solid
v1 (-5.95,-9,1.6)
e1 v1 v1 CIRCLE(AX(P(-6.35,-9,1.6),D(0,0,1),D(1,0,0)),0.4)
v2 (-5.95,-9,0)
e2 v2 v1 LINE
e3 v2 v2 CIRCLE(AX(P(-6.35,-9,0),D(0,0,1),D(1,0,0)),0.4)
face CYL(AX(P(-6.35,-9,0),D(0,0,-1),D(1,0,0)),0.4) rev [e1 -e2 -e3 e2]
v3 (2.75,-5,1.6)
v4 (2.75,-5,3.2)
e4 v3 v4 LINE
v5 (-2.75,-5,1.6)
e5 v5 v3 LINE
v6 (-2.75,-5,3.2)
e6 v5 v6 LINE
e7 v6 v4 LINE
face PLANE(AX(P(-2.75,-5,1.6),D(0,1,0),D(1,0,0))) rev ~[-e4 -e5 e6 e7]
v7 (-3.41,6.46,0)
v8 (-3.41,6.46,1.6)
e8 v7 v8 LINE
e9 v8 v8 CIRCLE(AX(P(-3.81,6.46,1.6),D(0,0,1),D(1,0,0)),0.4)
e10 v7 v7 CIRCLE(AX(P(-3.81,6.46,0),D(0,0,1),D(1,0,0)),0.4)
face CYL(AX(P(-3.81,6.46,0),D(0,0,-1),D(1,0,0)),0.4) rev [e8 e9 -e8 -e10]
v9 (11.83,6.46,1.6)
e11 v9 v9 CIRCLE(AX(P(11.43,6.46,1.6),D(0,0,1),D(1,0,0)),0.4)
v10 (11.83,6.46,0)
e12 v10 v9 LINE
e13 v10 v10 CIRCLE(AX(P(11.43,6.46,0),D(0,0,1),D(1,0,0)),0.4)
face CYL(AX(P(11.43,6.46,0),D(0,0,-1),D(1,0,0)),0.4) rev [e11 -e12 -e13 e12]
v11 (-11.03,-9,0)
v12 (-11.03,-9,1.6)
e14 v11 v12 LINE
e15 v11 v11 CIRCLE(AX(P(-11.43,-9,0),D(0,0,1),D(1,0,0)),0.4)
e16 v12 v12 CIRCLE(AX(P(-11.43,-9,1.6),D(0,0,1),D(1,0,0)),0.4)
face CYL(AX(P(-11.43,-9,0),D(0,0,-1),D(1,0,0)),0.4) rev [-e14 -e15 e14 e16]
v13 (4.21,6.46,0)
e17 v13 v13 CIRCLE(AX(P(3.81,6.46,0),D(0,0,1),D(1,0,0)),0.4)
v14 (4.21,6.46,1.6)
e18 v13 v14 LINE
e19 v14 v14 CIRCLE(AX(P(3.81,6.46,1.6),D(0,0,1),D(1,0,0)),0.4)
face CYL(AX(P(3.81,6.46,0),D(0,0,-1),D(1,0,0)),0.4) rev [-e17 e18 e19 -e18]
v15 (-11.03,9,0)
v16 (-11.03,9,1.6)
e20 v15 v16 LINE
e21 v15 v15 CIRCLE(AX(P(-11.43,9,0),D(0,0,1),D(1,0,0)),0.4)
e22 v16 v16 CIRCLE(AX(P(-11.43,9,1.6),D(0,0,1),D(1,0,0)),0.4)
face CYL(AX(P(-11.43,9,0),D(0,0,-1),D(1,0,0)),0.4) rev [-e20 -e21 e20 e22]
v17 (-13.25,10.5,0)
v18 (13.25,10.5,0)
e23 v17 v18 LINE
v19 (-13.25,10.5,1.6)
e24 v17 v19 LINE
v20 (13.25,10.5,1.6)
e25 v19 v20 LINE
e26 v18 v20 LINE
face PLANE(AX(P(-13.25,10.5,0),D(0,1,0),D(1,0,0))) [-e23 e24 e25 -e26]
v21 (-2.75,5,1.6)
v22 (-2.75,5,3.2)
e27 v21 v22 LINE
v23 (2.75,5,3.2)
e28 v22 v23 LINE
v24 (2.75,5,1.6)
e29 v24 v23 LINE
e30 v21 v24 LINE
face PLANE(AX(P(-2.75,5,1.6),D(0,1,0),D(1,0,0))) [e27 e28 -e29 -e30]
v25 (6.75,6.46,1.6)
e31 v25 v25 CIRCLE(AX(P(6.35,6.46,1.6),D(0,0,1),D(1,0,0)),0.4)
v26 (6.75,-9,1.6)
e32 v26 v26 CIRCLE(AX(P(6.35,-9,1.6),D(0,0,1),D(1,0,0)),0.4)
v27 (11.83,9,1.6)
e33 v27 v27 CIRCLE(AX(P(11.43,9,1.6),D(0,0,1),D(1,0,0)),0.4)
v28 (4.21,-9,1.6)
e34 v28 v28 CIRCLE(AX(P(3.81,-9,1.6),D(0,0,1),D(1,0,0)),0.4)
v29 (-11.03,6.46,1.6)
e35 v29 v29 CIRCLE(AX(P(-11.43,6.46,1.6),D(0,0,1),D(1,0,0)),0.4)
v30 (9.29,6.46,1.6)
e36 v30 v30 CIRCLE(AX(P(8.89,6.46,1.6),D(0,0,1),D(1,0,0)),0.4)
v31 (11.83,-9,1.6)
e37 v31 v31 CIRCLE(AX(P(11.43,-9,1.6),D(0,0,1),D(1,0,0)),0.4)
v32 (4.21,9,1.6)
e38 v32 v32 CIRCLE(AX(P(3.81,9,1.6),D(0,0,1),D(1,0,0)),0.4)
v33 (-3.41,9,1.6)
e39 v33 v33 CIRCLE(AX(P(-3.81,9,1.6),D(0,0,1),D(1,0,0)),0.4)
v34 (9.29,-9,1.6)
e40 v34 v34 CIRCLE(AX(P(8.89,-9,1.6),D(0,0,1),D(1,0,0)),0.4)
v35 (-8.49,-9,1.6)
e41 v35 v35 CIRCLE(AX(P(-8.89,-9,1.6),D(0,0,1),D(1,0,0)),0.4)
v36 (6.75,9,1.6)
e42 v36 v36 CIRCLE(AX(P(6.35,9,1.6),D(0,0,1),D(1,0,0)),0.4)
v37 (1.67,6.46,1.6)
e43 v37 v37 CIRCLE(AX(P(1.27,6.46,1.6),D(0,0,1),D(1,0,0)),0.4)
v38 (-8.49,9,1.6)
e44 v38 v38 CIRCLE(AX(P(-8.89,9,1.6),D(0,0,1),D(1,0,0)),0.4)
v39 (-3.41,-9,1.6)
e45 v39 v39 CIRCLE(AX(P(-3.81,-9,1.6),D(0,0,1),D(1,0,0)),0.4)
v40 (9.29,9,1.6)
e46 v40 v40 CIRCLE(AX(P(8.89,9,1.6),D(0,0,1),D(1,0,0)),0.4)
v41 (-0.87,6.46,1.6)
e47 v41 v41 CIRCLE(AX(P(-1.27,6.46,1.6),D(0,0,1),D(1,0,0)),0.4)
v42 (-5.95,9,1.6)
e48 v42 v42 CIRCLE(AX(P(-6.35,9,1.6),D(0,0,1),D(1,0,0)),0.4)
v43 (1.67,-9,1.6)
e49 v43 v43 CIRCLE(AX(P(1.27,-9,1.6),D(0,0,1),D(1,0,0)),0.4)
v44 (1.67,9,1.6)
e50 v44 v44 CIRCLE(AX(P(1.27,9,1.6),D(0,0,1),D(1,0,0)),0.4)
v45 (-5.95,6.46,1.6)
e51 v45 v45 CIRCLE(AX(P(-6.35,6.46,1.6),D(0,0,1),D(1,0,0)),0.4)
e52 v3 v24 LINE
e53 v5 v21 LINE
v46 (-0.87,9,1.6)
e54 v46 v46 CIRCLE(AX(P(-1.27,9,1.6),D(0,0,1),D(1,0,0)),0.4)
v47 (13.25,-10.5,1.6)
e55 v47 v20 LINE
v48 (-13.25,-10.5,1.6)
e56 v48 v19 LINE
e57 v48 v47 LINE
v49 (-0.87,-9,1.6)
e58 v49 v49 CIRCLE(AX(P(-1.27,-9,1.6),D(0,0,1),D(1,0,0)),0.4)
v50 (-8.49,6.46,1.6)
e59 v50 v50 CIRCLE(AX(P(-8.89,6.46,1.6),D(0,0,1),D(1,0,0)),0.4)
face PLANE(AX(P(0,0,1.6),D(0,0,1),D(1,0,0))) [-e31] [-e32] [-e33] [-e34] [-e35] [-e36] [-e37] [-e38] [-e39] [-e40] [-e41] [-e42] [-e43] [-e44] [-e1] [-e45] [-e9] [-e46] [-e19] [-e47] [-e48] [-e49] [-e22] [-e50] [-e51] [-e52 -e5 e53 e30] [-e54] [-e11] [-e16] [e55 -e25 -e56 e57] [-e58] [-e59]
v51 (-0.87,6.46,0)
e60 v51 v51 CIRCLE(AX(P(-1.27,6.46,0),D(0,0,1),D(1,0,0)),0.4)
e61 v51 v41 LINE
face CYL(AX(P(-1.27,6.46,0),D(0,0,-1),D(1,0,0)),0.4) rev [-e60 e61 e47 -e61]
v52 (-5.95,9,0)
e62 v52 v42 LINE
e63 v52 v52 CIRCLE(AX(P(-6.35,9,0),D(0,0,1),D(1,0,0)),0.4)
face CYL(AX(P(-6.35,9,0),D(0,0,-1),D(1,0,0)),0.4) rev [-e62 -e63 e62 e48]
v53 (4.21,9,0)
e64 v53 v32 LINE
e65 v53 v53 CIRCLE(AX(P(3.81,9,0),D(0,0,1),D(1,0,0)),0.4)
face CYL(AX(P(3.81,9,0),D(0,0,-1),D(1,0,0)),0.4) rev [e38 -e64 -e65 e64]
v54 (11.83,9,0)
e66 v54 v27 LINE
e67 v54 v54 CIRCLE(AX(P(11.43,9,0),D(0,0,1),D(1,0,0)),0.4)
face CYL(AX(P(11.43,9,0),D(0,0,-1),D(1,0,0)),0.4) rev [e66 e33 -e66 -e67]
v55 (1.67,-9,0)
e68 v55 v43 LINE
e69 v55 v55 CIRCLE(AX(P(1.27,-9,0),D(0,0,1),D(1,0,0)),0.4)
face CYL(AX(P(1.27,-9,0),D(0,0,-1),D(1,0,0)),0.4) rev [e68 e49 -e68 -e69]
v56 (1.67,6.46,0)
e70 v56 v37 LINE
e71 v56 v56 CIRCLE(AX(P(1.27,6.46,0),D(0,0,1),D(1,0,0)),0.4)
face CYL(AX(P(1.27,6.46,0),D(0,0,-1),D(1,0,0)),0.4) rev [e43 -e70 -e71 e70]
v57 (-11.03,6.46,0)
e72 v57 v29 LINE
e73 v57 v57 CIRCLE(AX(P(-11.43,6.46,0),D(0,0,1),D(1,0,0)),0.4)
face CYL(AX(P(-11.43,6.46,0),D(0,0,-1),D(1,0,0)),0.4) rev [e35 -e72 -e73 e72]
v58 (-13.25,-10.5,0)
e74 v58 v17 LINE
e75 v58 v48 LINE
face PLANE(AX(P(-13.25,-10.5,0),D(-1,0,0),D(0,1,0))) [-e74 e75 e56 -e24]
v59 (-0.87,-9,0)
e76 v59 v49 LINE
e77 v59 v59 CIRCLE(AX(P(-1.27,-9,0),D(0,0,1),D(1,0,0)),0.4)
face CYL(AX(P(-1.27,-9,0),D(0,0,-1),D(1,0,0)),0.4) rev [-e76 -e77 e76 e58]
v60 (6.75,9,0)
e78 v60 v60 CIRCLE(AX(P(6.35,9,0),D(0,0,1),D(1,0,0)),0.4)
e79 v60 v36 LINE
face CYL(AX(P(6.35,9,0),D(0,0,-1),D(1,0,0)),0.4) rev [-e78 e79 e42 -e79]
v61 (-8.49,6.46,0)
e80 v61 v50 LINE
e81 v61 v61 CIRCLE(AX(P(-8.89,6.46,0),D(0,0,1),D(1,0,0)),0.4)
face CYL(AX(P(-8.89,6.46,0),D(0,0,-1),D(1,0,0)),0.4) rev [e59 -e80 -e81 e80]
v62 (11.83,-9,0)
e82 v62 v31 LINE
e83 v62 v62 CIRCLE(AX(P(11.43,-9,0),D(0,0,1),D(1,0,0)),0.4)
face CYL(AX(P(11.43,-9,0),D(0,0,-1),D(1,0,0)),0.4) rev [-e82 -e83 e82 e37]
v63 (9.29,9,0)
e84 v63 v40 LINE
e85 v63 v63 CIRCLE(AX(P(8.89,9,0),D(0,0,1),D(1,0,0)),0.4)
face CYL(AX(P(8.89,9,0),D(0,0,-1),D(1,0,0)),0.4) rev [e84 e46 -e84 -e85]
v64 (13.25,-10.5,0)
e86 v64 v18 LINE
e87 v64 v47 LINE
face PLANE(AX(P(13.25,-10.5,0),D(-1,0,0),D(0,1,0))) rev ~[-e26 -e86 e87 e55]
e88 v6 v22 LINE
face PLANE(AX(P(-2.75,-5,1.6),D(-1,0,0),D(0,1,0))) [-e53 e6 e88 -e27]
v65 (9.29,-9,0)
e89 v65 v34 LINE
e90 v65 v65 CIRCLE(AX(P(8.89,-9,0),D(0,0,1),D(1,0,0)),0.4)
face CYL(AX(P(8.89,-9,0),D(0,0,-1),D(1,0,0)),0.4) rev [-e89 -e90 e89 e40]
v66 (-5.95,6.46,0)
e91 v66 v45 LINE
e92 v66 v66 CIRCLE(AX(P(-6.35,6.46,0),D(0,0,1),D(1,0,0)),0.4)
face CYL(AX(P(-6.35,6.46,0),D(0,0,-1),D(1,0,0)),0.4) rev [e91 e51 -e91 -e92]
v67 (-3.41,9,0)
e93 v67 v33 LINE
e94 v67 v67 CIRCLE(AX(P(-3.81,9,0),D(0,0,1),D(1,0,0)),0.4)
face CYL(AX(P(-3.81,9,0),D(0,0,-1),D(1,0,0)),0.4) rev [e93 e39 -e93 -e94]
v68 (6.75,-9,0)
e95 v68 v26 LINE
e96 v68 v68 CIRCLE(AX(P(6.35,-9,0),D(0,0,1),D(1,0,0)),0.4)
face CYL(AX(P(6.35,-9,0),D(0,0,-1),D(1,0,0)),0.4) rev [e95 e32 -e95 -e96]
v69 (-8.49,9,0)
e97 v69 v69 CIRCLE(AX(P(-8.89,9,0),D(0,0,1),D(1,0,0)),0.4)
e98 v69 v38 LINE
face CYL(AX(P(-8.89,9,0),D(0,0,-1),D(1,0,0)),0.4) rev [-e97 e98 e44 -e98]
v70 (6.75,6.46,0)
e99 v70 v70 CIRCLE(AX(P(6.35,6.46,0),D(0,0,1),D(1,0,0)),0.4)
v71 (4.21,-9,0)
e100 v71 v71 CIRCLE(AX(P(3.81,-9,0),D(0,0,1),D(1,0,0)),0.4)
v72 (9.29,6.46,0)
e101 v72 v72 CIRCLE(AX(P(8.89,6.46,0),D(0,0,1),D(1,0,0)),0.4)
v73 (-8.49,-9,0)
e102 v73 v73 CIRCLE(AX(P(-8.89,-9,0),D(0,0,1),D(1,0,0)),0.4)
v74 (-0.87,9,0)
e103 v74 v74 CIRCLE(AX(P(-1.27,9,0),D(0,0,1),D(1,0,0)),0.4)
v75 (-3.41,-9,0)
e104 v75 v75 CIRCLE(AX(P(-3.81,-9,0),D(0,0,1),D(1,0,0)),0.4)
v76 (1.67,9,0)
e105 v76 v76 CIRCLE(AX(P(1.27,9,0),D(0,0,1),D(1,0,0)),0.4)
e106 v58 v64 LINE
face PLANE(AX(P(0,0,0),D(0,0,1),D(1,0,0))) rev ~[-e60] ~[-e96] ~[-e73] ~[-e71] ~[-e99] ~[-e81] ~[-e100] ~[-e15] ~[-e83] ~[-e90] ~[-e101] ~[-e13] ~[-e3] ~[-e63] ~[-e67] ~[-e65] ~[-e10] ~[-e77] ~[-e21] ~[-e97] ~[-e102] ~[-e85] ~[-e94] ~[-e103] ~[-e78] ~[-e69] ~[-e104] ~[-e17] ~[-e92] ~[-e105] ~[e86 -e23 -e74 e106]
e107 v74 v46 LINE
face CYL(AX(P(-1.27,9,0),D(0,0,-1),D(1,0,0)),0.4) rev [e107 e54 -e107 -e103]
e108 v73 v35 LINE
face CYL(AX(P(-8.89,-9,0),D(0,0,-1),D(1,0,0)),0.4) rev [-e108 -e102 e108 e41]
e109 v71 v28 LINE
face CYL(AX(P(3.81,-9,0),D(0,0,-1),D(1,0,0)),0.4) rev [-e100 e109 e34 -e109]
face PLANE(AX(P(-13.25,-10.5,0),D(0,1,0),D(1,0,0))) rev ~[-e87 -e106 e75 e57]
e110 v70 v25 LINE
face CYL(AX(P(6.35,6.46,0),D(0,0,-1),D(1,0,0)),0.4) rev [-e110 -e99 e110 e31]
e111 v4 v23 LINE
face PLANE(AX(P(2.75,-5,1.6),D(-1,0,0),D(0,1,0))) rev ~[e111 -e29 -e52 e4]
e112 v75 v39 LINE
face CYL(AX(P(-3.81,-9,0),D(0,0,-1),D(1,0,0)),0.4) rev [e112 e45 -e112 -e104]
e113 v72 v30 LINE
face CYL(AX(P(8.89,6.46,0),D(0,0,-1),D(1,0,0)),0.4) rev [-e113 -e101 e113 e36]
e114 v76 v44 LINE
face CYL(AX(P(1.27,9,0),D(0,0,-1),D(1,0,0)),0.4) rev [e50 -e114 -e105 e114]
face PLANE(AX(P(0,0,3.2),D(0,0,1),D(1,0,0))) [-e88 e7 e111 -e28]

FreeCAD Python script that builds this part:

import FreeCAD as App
import Part
import Sketcher

V = App.Vector

doc = App.newDocument("Part")
body = doc.addObject("PartDesign::Body", "Body")

sketch1 = body.newObject("Sketcher::SketchObject", "Sketch")
sketch1.AttachmentSupport = (doc.getObject("XY_Plane"), [""])
sketch1.MapMode = "FlatFace"
sketch1.addGeometry([
    Part.LineSegment(V(-13.25, 10.5, 0), V(-13.25, -10.5, 0)),
    Part.LineSegment(V(-13.25, -10.5, 0), V(13.25, -10.5, 0)),
    Part.LineSegment(V(13.25, -10.5, 0), V(13.25, 10.5, 0)),
    Part.LineSegment(V(13.25, 10.5, 0), V(-13.25, 10.5, 0)),
    Part.Circle(V(-11.43, -9, 0), V(0, 0, 1), 0.4),
    Part.Circle(V(-8.89, -9, 0), V(0, 0, 1), 0.4),
    Part.Circle(V(-6.35, -9, 0), V(0, 0, 1), 0.4),
    Part.Circle(V(-3.81, -9, 0), V(0, 0, 1), 0.4),
    Part.Circle(V(-1.27, -9, 0), V(0, 0, 1), 0.4),
    Part.Circle(V(1.27, -9, 0), V(0, 0, 1), 0.4),
    Part.Circle(V(3.81, -9, 0), V(0, 0, 1), 0.4),
    Part.Circle(V(6.35, -9, 0), V(0, 0, 1), 0.4),
    Part.Circle(V(8.89, -9, 0), V(0, 0, 1), 0.4),
    Part.Circle(V(11.43, -9, 0), V(0, 0, 1), 0.4),
    Part.Circle(V(-11.43, 6.46, 0), V(0, 0, 1), 0.4),
    Part.Circle(V(-8.89, 6.46, 0), V(0, 0, 1), 0.4),
    Part.Circle(V(-6.35, 6.46, 0), V(0, 0, 1), 0.4),
    Part.Circle(V(-11.43, 9, 0), V(0, 0, 1), 0.4),
    Part.Circle(V(-8.89, 9, 0), V(0, 0, 1), 0.4),
    Part.Circle(V(-6.35, 9, 0), V(0, 0, 1), 0.4),
    Part.Circle(V(-3.81, 6.46, 0), V(0, 0, 1), 0.4),
    Part.Circle(V(-1.27, 6.46, 0), V(0, 0, 1), 0.4),
    Part.Circle(V(-3.81, 9, 0), V(0, 0, 1), 0.4),
    Part.Circle(V(-1.27, 9, 0), V(0, 0, 1), 0.4),
    Part.Circle(V(1.27, 6.46, 0), V(0, 0, 1), 0.4),
    Part.Circle(V(3.81, 6.46, 0), V(0, 0, 1), 0.4),
    Part.Circle(V(1.27, 9, 0), V(0, 0, 1), 0.4),
    Part.Circle(V(3.81, 9, 0), V(0, 0, 1), 0.4),
    Part.Circle(V(6.35, 6.46, 0), V(0, 0, 1), 0.4),
    Part.Circle(V(8.89, 6.46, 0), V(0, 0, 1), 0.4),
    Part.Circle(V(11.43, 6.46, 0), V(0, 0, 1), 0.4),
    Part.Circle(V(6.35, 9, 0), V(0, 0, 1), 0.4),
    Part.Circle(V(8.89, 9, 0), V(0, 0, 1), 0.4),
    Part.Circle(V(11.43, 9, 0), V(0, 0, 1), 0.4),
], False)
sketch1.addConstraint([
    Sketcher.Constraint("Coincident", 0, 2, 1, 1),
    Sketcher.Constraint("Coincident", 1, 2, 2, 1),
    Sketcher.Constraint("Coincident", 2, 2, 3, 1),
    Sketcher.Constraint("Coincident", 3, 2, 0, 1),
    Sketcher.Constraint("Vertical", 0),
    Sketcher.Constraint("Horizontal", 1),
    Sketcher.Constraint("Vertical", 2),
    Sketcher.Constraint("Horizontal", 3),
    Sketcher.Constraint("Equal", 4, 5),
    Sketcher.Constraint("Equal", 5, 6),
    Sketcher.Constraint("Equal", 6, 7),
    Sketcher.Constraint("Equal", 7, 8),
    Sketcher.Constraint("Equal", 8, 9),
    Sketcher.Constraint("Equal", 9, 10),
    Sketcher.Constraint("Equal", 10, 11),
    Sketcher.Constraint("Equal", 11, 12),
    Sketcher.Constraint("Equal", 12, 13),
    Sketcher.Constraint("Equal", 13, 14),
    Sketcher.Constraint("Equal", 14, 15),
    Sketcher.Constraint("Equal", 15, 16),
    Sketcher.Constraint("Equal", 16, 17),
    Sketcher.Constraint("Equal", 17, 18),
    Sketcher.Constraint("Equal", 18, 19),
    Sketcher.Constraint("Equal", 19, 20),
    Sketcher.Constraint("Equal", 20, 21),
    Sketcher.Constraint("Equal", 21, 22),
    Sketcher.Constraint("Equal", 22, 23),
    Sketcher.Constraint("Equal", 23, 24),
    Sketcher.Constraint("Equal", 24, 25),
    Sketcher.Constraint("Equal", 25, 26),
    Sketcher.Constraint("Equal", 26, 27),
    Sketcher.Constraint("Equal", 27, 28),
    Sketcher.Constraint("Equal", 28, 29),
    Sketcher.Constraint("Equal", 29, 30),
    Sketcher.Constraint("Equal", 30, 31),
    Sketcher.Constraint("Equal", 31, 32),
    Sketcher.Constraint("Equal", 32, 33),
    Sketcher.Constraint("Symmetric", 13, 3, 17, 3, -1, 1),
    Sketcher.Constraint("Symmetric", 12, 3, 18, 3, -1, 1),
    Sketcher.Constraint("Symmetric", 11, 3, 19, 3, -1, 1),
    Sketcher.Constraint("Symmetric", 10, 3, 22, 3, -1, 1),
    Sketcher.Constraint("Symmetric", 9, 3, 23, 3, -1, 1),
    Sketcher.Constraint("Symmetric", 8, 3, 26, 3, -1, 1),
    Sketcher.Constraint("Symmetric", 7, 3, 27, 3, -1, 1),
    Sketcher.Constraint("Symmetric", 6, 3, 31, 3, -1, 1),
    Sketcher.Constraint("Symmetric", 5, 3, 32, 3, -1, 1),
    Sketcher.Constraint("Symmetric", 4, 3, 33, 3, -1, 1),
    Sketcher.Constraint("Symmetric", 0, 2, 2, 2, -1, 1),
    Sketcher.Constraint("Symmetric", 8, 3, 9, 3, -2),
    Sketcher.Constraint("Symmetric", 7, 3, 10, 3, -2),
    Sketcher.Constraint("Symmetric", 6, 3, 11, 3, -2),
    Sketcher.Constraint("Symmetric", 5, 3, 12, 3, -2),
    Sketcher.Constraint("Symmetric", 4, 3, 13, 3, -2),
    Sketcher.Constraint("Symmetric", 21, 3, 24, 3, -2),
    Sketcher.Constraint("Symmetric", 20, 3, 25, 3, -2),
    Sketcher.Constraint("Symmetric", 16, 3, 28, 3, -2),
    Sketcher.Constraint("Symmetric", 15, 3, 29, 3, -2),
    Sketcher.Constraint("Symmetric", 14, 3, 30, 3, -2),
    Sketcher.Constraint("Horizontal", 4, 3, 5, 3),
    Sketcher.Constraint("Horizontal", 5, 3, 6, 3),
    Sketcher.Constraint("Horizontal", 6, 3, 7, 3),
    Sketcher.Constraint("Horizontal", 7, 3, 8, 3),
    Sketcher.Constraint("Horizontal", 14, 3, 15, 3),
    Sketcher.Constraint("Horizontal", 15, 3, 16, 3),
    Sketcher.Constraint("Horizontal", 16, 3, 20, 3),
    Sketcher.Constraint("Horizontal", 20, 3, 21, 3),
    Sketcher.Constraint("Vertical", 4, 3, 14, 3),
    Sketcher.Constraint("Vertical", 5, 3, 15, 3),
    Sketcher.Constraint("Vertical", 6, 3, 16, 3),
    Sketcher.Constraint("Vertical", 7, 3, 20, 3),
    Sketcher.Constraint("Vertical", 8, 3, 21, 3),
    Sketcher.Constraint("Diameter", 4, 0.8),
    Sketcher.Constraint("DistanceY", 0, 2, 0, 1, 21.0),
    Sketcher.Constraint("DistanceX", 1, 1, 1, 2, 26.5),
    Sketcher.Constraint("DistanceY", 4, 3, -1, 1, 9.0),
    Sketcher.Constraint("DistanceX", 4, 3, 9, 3, 12.7),
    Sketcher.Constraint("DistanceX", 5, 3, 10, 3, 12.7),
    Sketcher.Constraint("DistanceX", 6, 3, 11, 3, 12.7),
    Sketcher.Constraint("DistanceX", 4, 3, -1, 1, 11.43),
    Sketcher.Constraint("DistanceX", 5, 3, -1, 1, 8.89),
    Sketcher.Constraint("DistanceY", -1, 1, 14, 3, 6.46),
])
pad1 = body.newObject("PartDesign::Pad", "Pad")
pad1.Profile = sketch1
pad1.Length = 1.6

sketch2 = body.newObject("Sketcher::SketchObject", "Sketch001")
sketch2.AttachmentSupport = (doc.getObject("XY_Plane"), [""])
sketch2.MapMode = "FlatFace"
sketch2.AttachmentOffset = App.Placement(V(0, 0, 1.6), App.Rotation())
sketch2.addGeometry([
    Part.LineSegment(V(-3, 5, 0), V(-3, -5, 0)),
    Part.LineSegment(V(-3, -5, 0), V(3, -5, 0)),
    Part.LineSegment(V(3, -5, 0), V(3, 5, 0)),
    Part.LineSegment(V(3, 5, 0), V(-3, 5, 0)),
], False)
sketch2.addConstraint([
    Sketcher.Constraint("Coincident", 0, 2, 1, 1),
    Sketcher.Constraint("Coincident", 1, 2, 2, 1),
    Sketcher.Constraint("Coincident", 2, 2, 3, 1),
    Sketcher.Constraint("Coincident", 3, 2, 0, 1),
    Sketcher.Constraint("Vertical", 0),
    Sketcher.Constraint("Horizontal", 1),
    Sketcher.Constraint("Vertical", 2),
    Sketcher.Constraint("Horizontal", 3),
    Sketcher.Constraint("Symmetric", 0, 2, 2, 2, -1, 1),
    Sketcher.Constraint("DistanceY", 0, 2, 0, 1, 10.0),
    Sketcher.Constraint("DistanceX", 1, 1, 1, 2, 5.5),
])
pad2 = body.newObject("PartDesign::Pad", "Pad001")
pad2.Profile = sketch2
pad2.Length = 1.6

doc.recompute()
